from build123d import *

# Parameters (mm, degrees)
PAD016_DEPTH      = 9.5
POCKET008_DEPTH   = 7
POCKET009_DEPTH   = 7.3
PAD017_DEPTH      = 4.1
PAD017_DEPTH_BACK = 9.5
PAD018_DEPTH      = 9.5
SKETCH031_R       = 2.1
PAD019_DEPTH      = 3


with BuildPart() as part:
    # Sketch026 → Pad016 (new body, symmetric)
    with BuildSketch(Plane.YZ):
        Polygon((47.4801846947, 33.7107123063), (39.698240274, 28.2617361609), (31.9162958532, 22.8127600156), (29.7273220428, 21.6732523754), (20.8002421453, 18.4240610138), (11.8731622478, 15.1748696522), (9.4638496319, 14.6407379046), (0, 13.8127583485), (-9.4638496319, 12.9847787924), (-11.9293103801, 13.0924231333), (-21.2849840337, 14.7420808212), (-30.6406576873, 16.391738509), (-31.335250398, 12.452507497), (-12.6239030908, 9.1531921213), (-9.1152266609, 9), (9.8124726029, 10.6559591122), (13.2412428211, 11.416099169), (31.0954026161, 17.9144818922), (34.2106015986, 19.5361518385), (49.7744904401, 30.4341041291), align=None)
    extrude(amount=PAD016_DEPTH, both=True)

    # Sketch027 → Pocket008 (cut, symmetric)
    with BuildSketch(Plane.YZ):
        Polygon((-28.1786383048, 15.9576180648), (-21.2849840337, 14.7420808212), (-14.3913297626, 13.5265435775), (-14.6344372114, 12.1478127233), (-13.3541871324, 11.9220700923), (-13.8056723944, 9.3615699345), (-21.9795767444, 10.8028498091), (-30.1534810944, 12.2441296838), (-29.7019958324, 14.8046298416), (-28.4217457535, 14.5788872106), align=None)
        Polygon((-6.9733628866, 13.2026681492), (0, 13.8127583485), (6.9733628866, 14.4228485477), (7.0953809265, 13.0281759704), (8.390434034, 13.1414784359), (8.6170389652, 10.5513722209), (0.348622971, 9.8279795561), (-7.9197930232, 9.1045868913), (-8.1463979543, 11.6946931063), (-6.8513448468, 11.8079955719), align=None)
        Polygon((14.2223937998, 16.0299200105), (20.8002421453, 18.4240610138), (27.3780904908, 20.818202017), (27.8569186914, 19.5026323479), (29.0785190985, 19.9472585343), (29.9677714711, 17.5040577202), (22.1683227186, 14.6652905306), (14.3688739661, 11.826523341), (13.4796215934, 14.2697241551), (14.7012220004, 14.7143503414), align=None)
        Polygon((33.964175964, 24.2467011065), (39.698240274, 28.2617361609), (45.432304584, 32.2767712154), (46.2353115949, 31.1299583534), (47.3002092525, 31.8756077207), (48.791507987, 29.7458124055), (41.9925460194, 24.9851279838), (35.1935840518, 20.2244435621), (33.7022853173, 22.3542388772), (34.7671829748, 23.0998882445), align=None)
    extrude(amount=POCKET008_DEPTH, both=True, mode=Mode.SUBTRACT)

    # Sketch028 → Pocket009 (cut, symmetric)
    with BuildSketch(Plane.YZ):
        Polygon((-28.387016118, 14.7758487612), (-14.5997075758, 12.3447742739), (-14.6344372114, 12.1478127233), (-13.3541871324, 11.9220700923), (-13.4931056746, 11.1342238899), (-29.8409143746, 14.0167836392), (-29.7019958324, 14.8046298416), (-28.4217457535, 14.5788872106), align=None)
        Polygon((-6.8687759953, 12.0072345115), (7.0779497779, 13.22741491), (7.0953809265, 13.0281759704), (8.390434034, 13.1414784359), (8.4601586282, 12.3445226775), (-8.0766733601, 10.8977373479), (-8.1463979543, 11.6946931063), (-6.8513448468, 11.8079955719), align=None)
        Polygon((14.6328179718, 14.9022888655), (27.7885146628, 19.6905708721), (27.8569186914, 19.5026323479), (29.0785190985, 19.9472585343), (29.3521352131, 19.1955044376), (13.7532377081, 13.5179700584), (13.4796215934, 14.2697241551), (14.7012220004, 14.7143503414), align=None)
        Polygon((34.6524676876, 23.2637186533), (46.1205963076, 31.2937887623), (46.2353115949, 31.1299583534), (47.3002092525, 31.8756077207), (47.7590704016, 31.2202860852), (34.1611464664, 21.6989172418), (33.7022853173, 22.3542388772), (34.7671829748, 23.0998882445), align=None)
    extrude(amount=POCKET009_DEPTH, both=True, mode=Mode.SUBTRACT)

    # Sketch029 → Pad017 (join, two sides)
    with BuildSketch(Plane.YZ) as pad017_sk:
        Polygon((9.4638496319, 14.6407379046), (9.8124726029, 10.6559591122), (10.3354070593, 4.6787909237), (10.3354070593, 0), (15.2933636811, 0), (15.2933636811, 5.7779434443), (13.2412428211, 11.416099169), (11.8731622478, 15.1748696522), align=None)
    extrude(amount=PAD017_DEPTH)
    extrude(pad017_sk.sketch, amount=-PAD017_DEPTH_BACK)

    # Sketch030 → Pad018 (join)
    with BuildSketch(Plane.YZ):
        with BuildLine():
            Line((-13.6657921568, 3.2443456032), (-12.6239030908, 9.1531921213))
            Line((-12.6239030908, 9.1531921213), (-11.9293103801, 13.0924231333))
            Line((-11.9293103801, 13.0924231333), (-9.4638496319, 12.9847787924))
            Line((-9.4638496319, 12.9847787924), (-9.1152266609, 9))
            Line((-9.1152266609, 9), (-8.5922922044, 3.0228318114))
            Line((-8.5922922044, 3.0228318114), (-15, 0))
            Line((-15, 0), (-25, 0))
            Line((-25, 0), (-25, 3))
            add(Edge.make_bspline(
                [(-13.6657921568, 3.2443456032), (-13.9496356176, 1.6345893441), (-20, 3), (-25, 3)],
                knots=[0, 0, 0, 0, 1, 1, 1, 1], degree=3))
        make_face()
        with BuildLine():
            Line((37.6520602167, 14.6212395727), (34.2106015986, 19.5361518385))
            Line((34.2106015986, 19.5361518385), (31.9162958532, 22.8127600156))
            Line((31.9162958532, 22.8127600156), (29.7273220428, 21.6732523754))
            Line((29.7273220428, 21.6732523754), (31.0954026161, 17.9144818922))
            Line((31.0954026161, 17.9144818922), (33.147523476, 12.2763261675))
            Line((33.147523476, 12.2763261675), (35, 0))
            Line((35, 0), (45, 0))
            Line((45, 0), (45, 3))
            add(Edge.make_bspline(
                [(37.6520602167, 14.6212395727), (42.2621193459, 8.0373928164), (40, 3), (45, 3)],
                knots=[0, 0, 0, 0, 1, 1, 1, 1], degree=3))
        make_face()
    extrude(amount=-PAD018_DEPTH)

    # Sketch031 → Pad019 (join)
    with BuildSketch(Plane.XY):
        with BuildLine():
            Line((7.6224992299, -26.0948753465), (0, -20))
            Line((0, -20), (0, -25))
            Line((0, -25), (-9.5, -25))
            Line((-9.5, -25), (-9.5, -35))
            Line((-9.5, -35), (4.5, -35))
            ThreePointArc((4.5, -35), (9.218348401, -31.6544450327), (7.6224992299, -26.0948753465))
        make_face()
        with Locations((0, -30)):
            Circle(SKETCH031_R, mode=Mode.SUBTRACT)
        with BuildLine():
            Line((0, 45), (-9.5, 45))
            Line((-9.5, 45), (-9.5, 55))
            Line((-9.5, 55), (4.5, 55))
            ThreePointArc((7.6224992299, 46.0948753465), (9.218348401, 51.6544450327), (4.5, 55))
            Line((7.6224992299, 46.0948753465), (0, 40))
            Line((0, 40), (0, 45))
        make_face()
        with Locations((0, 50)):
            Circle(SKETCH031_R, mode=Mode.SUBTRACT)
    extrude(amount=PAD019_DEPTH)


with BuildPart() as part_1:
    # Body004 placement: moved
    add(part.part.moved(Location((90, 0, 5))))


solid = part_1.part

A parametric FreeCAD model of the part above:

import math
import FreeCAD as App
import Part
import Sketcher
from FreeCAD import Vector
Q = App.Units.Quantity

doc = App.newDocument("Part")
body = doc.addObject("PartDesign::Body", "Body")

# Sketch on YZ plane
sketch1 = doc.addObject("Sketcher::SketchObject", "Sketch")
body.addObject(sketch1)
sketch1.AttachmentSupport = (doc.YZ_Plane, [""])
sketch1.MapMode = "FlatFace"
sketch1.addGeometry([
    Part.LineSegment(Vector(47.480185, 33.710712, 0), Vector(39.69824, 28.261736, 0)),  # 0
    Part.LineSegment(Vector(39.69824, 28.261736, 0), Vector(31.916296, 22.81276, 0)),  # 1
    Part.LineSegment(Vector(31.916296, 22.81276, 0), Vector(29.727322, 21.673252, 0)),  # 2
    Part.LineSegment(Vector(29.727322, 21.673252, 0), Vector(11.873162, 15.17487, 0)),  # 3
    Part.LineSegment(Vector(11.873162, 15.17487, 0), Vector(9.46385, 14.640738, 0)),  # 4
    Part.LineSegment(Vector(9.46385, 14.640738, 0), Vector(-9.46385, 12.984779, 0)),  # 5
    Part.LineSegment(Vector(-9.46385, 12.984779, 0), Vector(-11.92931, 13.092423, 0)),  # 6
    Part.LineSegment(Vector(-11.92931, 13.092423, 0), Vector(-21.284984, 14.742081, 0)),  # 7
    Part.LineSegment(Vector(-21.284984, 14.742081, 0), Vector(-30.640658, 16.391739, 0)),  # 8
    Part.LineSegment(Vector(-30.640658, 16.391739, 0), Vector(-31.33525, 12.452507, 0)),  # 9
    Part.LineSegment(Vector(-31.33525, 12.452507, 0), Vector(-12.623903, 9.153192, 0)),  # 10
    Part.LineSegment(Vector(-12.623903, 9.153192, 0), Vector(-9.115227, 9, 0)),  # 11
    Part.LineSegment(Vector(-9.115227, 9, 0), Vector(9.812473, 10.655959, 0)),  # 12
    Part.LineSegment(Vector(9.812473, 10.655959, 0), Vector(13.241243, 11.416099, 0)),  # 13
    Part.LineSegment(Vector(13.241243, 11.416099, 0), Vector(31.095403, 17.914482, 0)),  # 14
    Part.LineSegment(Vector(31.095403, 17.914482, 0), Vector(34.210602, 19.536152, 0)),  # 15
    Part.LineSegment(Vector(34.210602, 19.536152, 0), Vector(49.77449, 30.434104, 0)),  # 16
    Part.LineSegment(Vector(49.77449, 30.434104, 0), Vector(47.480185, 33.710712, 0)),  # 17
], False)
sketch1.addConstraint([
    Sketcher.Constraint("Coincident", 0, 2, 1, 1),
    Sketcher.Constraint("Coincident", 1, 2, 2, 1),
    Sketcher.Constraint("Coincident", 2, 2, 3, 1),
    Sketcher.Constraint("Coincident", 3, 2, 4, 1),
    Sketcher.Constraint("Coincident", 4, 2, 5, 1),
    Sketcher.Constraint("Coincident", 5, 2, 6, 1),
    Sketcher.Constraint("Coincident", 6, 2, 7, 1),
    Sketcher.Constraint("Coincident", 7, 2, 8, 1),
    Sketcher.Constraint("Coincident", 8, 2, 9, 1),
    Sketcher.Constraint("Coincident", 9, 2, 10, 1),
    Sketcher.Constraint("Coincident", 10, 2, 11, 1),
    Sketcher.Constraint("Coincident", 11, 2, 12, 1),
    Sketcher.Constraint("Coincident", 12, 2, 13, 1),
    Sketcher.Constraint("Coincident", 13, 2, 14, 1),
    Sketcher.Constraint("Coincident", 14, 2, 15, 1),
    Sketcher.Constraint("Coincident", 15, 2, 16, 1),
    Sketcher.Constraint("Coincident", 16, 2, 17, 1),
    Sketcher.Constraint("Coincident", 17, 2, 0, 1),
    Sketcher.Constraint("Parallel", 0, 1),
    Sketcher.Constraint("Parallel", 7, 8),
    Sketcher.Constraint("Perpendicular", 8, 9),
    Sketcher.Constraint("Perpendicular", 9, 10),
    Sketcher.Constraint("Parallel", 6, 11),
    Sketcher.Constraint("Parallel", 5, 12),
    Sketcher.Constraint("Parallel", 4, 13),
    Sketcher.Constraint("Parallel", 3, 14),
    Sketcher.Constraint("Parallel", 2, 15),
    Sketcher.Constraint("Parallel", 1, 16),
    Sketcher.Constraint("Perpendicular", 16, 17),
    Sketcher.Constraint("Equal", 0, 1),
    Sketcher.Constraint("Equal", 2, 4),
    Sketcher.Constraint("Equal", 3, 5),
    Sketcher.Constraint("Equal", 4, 6),
    Sketcher.Constraint("Equal", 1, 7),
    Sketcher.Constraint("Equal", 7, 8),
    Sketcher.Constraint("Equal", 5, 10),
    Sketcher.Constraint("Equal", 10, 12),
    Sketcher.Constraint("Equal", 11, 13),
    Sketcher.Constraint("Equal", 12, 14),
    Sketcher.Constraint("Equal", 13, 15),
    Sketcher.Constraint("Equal", 14, 16),
    Sketcher.Constraint("Equal", 9, 17),
    Sketcher.Constraint("Angle", 0, Q("-145 deg")),
    Sketcher.Constraint("Angle", 3, Q("-160 deg")),
    Sketcher.Constraint("Angle", 5, Q("-175 deg")),
    Sketcher.Constraint("Angle", 7, Q("170 deg")),
    Sketcher.Constraint("Distance", 3, Q("19 mm")),
    Sketcher.Constraint("Distance", 9, Q("4 mm")),
    Sketcher.Constraint("DistanceY", -1, 1, 11, 2, Q("9 mm")),
    Sketcher.Constraint("Angle", 2, Q("-152.5 deg")),
    Sketcher.Constraint("Angle", 4, Q("-167.5 deg")),
    Sketcher.Constraint("Distance", 0, Q("9.5 mm")),
    Sketcher.Constraint("DistanceY", 4, 2, 0, 2, Q("13.620998 mm")),
    Sketcher.Constraint("DistanceX", -1, 1, 15, 2, Q("34.210602 mm")),
])
pad1 = doc.addObject("PartDesign::Pad", "Pad")
body.addObject(pad1)
pad1.Profile = sketch1
pad1.Length = 19
pad1.Midplane = True

# Sketch on YZ plane
sketch2 = doc.addObject("Sketcher::SketchObject", "Sketch001")
body.addObject(sketch2)
sketch2.AttachmentSupport = (doc.YZ_Plane, [""])
sketch2.MapMode = "FlatFace"
sketch2.addGeometry([
    Part.LineSegment(Vector(-21.284984, 14.742081, 0), Vector(-28.178638, 15.957618, 0)),  # 0
    Part.LineSegment(Vector(-28.178638, 15.957618, 0), Vector(-28.421746, 14.578887, 0)),  # 1
    Part.LineSegment(Vector(-28.421746, 14.578887, 0), Vector(-29.701996, 14.80463, 0)),  # 2
    Part.LineSegment(Vector(-29.701996, 14.80463, 0), Vector(-30.153481, 12.24413, 0)),  # 3
    Part.LineSegment(Vector(-30.153481, 12.24413, 0), Vector(-21.979577, 10.80285, 0)),  # 4
    Part.LineSegment(Vector(-21.979577, 10.80285, 0), Vector(-13.805672, 9.36157, 0)),  # 5
    Part.LineSegment(Vector(-13.805672, 9.36157, 0), Vector(-13.354187, 11.92207, 0)),  # 6
    Part.LineSegment(Vector(-13.354187, 11.92207, 0), Vector(-14.634437, 12.147813, 0)),  # 7
    Part.LineSegment(Vector(-14.634437, 12.147813, 0), Vector(-14.39133, 13.526544, 0)),  # 8
    Part.LineSegment(Vector(-14.39133, 13.526544, 0), Vector(-21.284984, 14.742081, 0)),  # 9
    Part.LineSegment(Vector(0, 13.812758, 0), Vector(-6.973363, 13.202668, 0)),  # 10
    Part.LineSegment(Vector(-6.973363, 13.202668, 0), Vector(-6.851345, 11.807996, 0)),  # 11
    Part.LineSegment(Vector(-6.851345, 11.807996, 0), Vector(-8.146398, 11.694693, 0)),  # 12
    Part.LineSegment(Vector(-8.146398, 11.694693, 0), Vector(-7.919793, 9.104587, 0)),  # 13
    Part.LineSegment(Vector(-7.919793, 9.104587, 0), Vector(8.617039, 10.551372, 0)),  # 14
    Part.LineSegment(Vector(8.617039, 10.551372, 0), Vector(8.390434, 13.141478, 0)),  # 15
    Part.LineSegment(Vector(8.390434, 13.141478, 0), Vector(7.095381, 13.028176, 0)),  # 16
    Part.LineSegment(Vector(7.095381, 13.028176, 0), Vector(6.973363, 14.422849, 0)),  # 17
    Part.LineSegment(Vector(6.973363, 14.422849, 0), Vector(0, 13.812758, 0)),  # 18
    Part.LineSegment(Vector(20.800242, 18.424061, 0), Vector(14.222394, 16.02992, 0)),  # 19
    Part.LineSegment(Vector(14.222394, 16.02992, 0), Vector(14.701222, 14.71435, 0)),  # 20
    Part.LineSegment(Vector(14.701222, 14.71435, 0), Vector(13.479622, 14.269724, 0)),  # 21
    Part.LineSegment(Vector(13.479622, 14.269724, 0), Vector(14.368874, 11.826523, 0)),  # 22
    Part.LineSegment(Vector(14.368874, 11.826523, 0), Vector(29.967771, 17.504058, 0)),  # 23
    Part.LineSegment(Vector(29.967771, 17.504058, 0), Vector(29.078519, 19.947259, 0)),  # 24
    Part.LineSegment(Vector(29.078519, 19.947259, 0), Vector(27.856919, 19.502632, 0)),  # 25
    Part.LineSegment(Vector(27.856919, 19.502632, 0), Vector(27.37809, 20.818202, 0)),  # 26
    Part.LineSegment(Vector(27.37809, 20.818202, 0), Vector(20.800242, 18.424061, 0)),  # 27
    Part.LineSegment(Vector(39.69824, 28.261736, 0), Vector(33.964176, 24.246701, 0)),  # 28
    Part.LineSegment(Vector(33.964176, 24.246701, 0), Vector(34.767183, 23.099888, 0)),  # 29
    Part.LineSegment(Vector(34.767183, 23.099888, 0), Vector(33.702285, 22.354239, 0)),  # 30
    Part.LineSegment(Vector(33.702285, 22.354239, 0), Vector(35.193584, 20.224444, 0)),  # 31
    Part.LineSegment(Vector(35.193584, 20.224444, 0), Vector(48.791508, 29.745812, 0)),  # 32
    Part.LineSegment(Vector(48.791508, 29.745812, 0), Vector(47.300209, 31.875608, 0)),  # 33
    Part.LineSegment(Vector(47.300209, 31.875608, 0), Vector(46.235312, 31.129958, 0)),  # 34
    Part.LineSegment(Vector(46.235312, 31.129958, 0), Vector(45.432305, 32.276771, 0)),  # 35
    Part.LineSegment(Vector(45.432305, 32.276771, 0), Vector(39.69824, 28.261736, 0)),  # 36
], False)
sketch2.addConstraint([
    Sketcher.Constraint("Coincident", 0, 2, 1, 1),
    Sketcher.Constraint("Coincident", 1, 2, 2, 1),
    Sketcher.Constraint("Coincident", 2, 2, 3, 1),
    Sketcher.Constraint("Coincident", 3, 2, 4, 1),
    Sketcher.Constraint("Coincident", 4, 2, 5, 1),
    Sketcher.Constraint("Coincident", 5, 2, 6, 1),
    Sketcher.Constraint("Coincident", 6, 2, 7, 1),
    Sketcher.Constraint("Coincident", 7, 2, 8, 1),
    Sketcher.Constraint("Coincident", 8, 2, 9, 1),
    Sketcher.Constraint("Coincident", 9, 2, 0, 1),
    Sketcher.Constraint("Coincident", 10, 2, 11, 1),
    Sketcher.Constraint("Coincident", 11, 2, 12, 1),
    Sketcher.Constraint("Coincident", 12, 2, 13, 1),
    Sketcher.Constraint("Coincident", 13, 2, 14, 1),
    Sketcher.Constraint("Coincident", 14, 2, 15, 1),
    Sketcher.Constraint("Coincident", 15, 2, 16, 1),
    Sketcher.Constraint("Coincident", 16, 2, 17, 1),
    Sketcher.Constraint("Coincident", 17, 2, 18, 1),
    Sketcher.Constraint("Coincident", 18, 2, 10, 1),
    Sketcher.Constraint("Coincident", 19, 2, 20, 1),
    Sketcher.Constraint("Coincident", 20, 2, 21, 1),
    Sketcher.Constraint("Coincident", 21, 2, 22, 1),
    Sketcher.Constraint("Coincident", 22, 2, 23, 1),
    Sketcher.Constraint("Coincident", 23, 2, 24, 1),
    Sketcher.Constraint("Coincident", 24, 2, 25, 1),
    Sketcher.Constraint("Coincident", 25, 2, 26, 1),
    Sketcher.Constraint("Coincident", 26, 2, 27, 1),
    Sketcher.Constraint("Coincident", 27, 2, 19, 1),
    Sketcher.Constraint("Coincident", 28, 2, 29, 1),
    Sketcher.Constraint("Coincident", 29, 2, 30, 1),
    Sketcher.Constraint("Coincident", 30, 2, 31, 1),
    Sketcher.Constraint("Coincident", 31, 2, 32, 1),
    Sketcher.Constraint("Coincident", 32, 2, 33, 1),
    Sketcher.Constraint("Coincident", 33, 2, 34, 1),
    Sketcher.Constraint("Coincident", 34, 2, 35, 1),
    Sketcher.Constraint("Coincident", 35, 2, 36, 1),
    Sketcher.Constraint("Coincident", 36, 2, 28, 1),
    Sketcher.Constraint("PointOnObject", 18, 2, -2),
    Sketcher.Constraint("Perpendicular", 0, 1),
    Sketcher.Constraint("Perpendicular", 1, 2),
    Sketcher.Constraint("Perpendicular", 2, 3),
    Sketcher.Constraint("Perpendicular", 3, 4),
    Sketcher.Constraint("Parallel", 4, 5),
    Sketcher.Constraint("Perpendicular", 5, 6),
    Sketcher.Constraint("Perpendicular", 6, 7),
    Sketcher.Constraint("Perpendicular", 7, 8),
    Sketcher.Constraint("Perpendicular", 8, 9),
    Sketcher.Constraint("Perpendicular", 10, 11),
    Sketcher.Constraint("Perpendicular", 11, 12),
    Sketcher.Constraint("Perpendicular", 12, 13),
    Sketcher.Constraint("Perpendicular", 13, 14),
    Sketcher.Constraint("Perpendicular", 14, 15),
    Sketcher.Constraint("Perpendicular", 15, 16),
    Sketcher.Constraint("Perpendicular", 16, 17),
    Sketcher.Constraint("Perpendicular", 17, 18),
    Sketcher.Constraint("Perpendicular", 19, 20),
    Sketcher.Constraint("Perpendicular", 20, 21),
    Sketcher.Constraint("Perpendicular", 21, 22),
    Sketcher.Constraint("Perpendicular", 22, 23),
    Sketcher.Constraint("Perpendicular", 23, 24),
    Sketcher.Constraint("Perpendicular", 24, 25),
    Sketcher.Constraint("Perpendicular", 25, 26),
    Sketcher.Constraint("Perpendicular", 26, 27),
    Sketcher.Constraint("Perpendicular", 28, 29),
    Sketcher.Constraint("Perpendicular", 29, 30),
    Sketcher.Constraint("Perpendicular", 30, 31),
    Sketcher.Constraint("Perpendicular", 31, 32),
    Sketcher.Constraint("Perpendicular", 32, 33),
    Sketcher.Constraint("Perpendicular", 33, 34),
    Sketcher.Constraint("Perpendicular", 34, 35),
    Sketcher.Constraint("Perpendicular", 35, 36),
    Sketcher.Constraint("Equal", 4, 5),
    Sketcher.Constraint("Equal", 3, 6),
    Sketcher.Constraint("Equal", 2, 7),
    Sketcher.Constraint("Equal", 0, 9),
    Sketcher.Constraint("Equal", 9, 10),
    Sketcher.Constraint("Equal", 8, 11),
    Sketcher.Constraint("Equal", 7, 12),
    Sketcher.Constraint("Equal", 6, 13),
    Sketcher.Constraint("Equal", 13, 15),
    Sketcher.Constraint("Equal", 12, 16),
    Sketcher.Constraint("Equal", 10, 18),
    Sketcher.Constraint("Equal", 18, 19),
    Sketcher.Constraint("Equal", 17, 20),
    Sketcher.Constraint("Equal", 16, 21),
    Sketcher.Constraint("Equal", 15, 22),
    Sketcher.Constraint("Equal", 14, 23),
    Sketcher.Constraint("Equal", 22, 24),
    Sketcher.Constraint("Equal", 21, 25),
    Sketcher.Constraint("Equal", 27, 28),
    Sketcher.Constraint("Equal", 26, 29),
    Sketcher.Constraint("Equal", 25, 30),
    Sketcher.Constraint("Equal", 24, 31),
    Sketcher.Constraint("Equal", 23, 32),
    Sketcher.Constraint("Equal", 31, 33),
    Sketcher.Constraint("Equal", 30, 34),
    Sketcher.Constraint("Angle", 0, Q("170 deg")),
    Sketcher.Constraint("Angle", 10, Q("-175 deg")),
    Sketcher.Constraint("Angle", 19, Q("-160 deg")),
    Sketcher.Constraint("Angle", 28, Q("-145 deg")),
    Sketcher.Constraint("Distance", 0, Q("7 mm")),
    Sketcher.Constraint("Distance", 1, Q("1.4 mm")),
    Sketcher.Constraint("Distance", 2, Q("1.3 mm")),
    Sketcher.Constraint("Distance", 3, Q("2.6 mm")),
    Sketcher.Constraint("DistanceY", -1, 1, 28, 2, Q("24.246701 mm")),
    Sketcher.Constraint("DistanceY", 6, 2, 10, 2, Q("1.280598 mm")),
    Sketcher.Constraint("DistanceY", 17, 2, 20, 2, Q("0.291502 mm")),
    Sketcher.Constraint("DistanceY", 26, 2, 28, 2, Q("3.428499 mm")),
    Sketcher.Constraint("DistanceX", 0, 2, -1, 1, Q("28.178638 mm")),
    Sketcher.Constraint("DistanceX", -1, 1, 21, 2, Q("13.479622 mm")),
    Sketcher.Constraint("DistanceX", -1, 1, 33, 2, Q("47.300209 mm")),
])
pocket1 = doc.addObject("PartDesign::Pocket", "Pocket")
body.addObject(pocket1)
pocket1.Profile = sketch2
pocket1.Length = 14
pocket1.Midplane = True

# Sketch on YZ plane
sketch3 = doc.addObject("Sketcher::SketchObject", "Sketch002")
body.addObject(sketch3)
sketch3.AttachmentSupport = (doc.YZ_Plane, [""])
sketch3.MapMode = "FlatFace"
sketch3.addGeometry([
    Part.LineSegment(Vector(-14.599708, 12.344774, 0), Vector(-28.387016, 14.775849, 0)),  # 0
    Part.LineSegment(Vector(-28.387016, 14.775849, 0), Vector(-28.421746, 14.578887, 0)),  # 1
    Part.LineSegment(Vector(-28.421746, 14.578887, 0), Vector(-29.701996, 14.80463, 0)),  # 2
    Part.LineSegment(Vector(-29.701996, 14.80463, 0), Vector(-29.840914, 14.016784, 0)),  # 3
    Part.LineSegment(Vector(-29.840914, 14.016784, 0), Vector(-13.493106, 11.134224, 0)),  # 4
    Part.LineSegment(Vector(-13.493106, 11.134224, 0), Vector(-13.354187, 11.92207, 0)),  # 5
    Part.LineSegment(Vector(-13.354187, 11.92207, 0), Vector(-14.634437, 12.147813, 0)),  # 6
    Part.LineSegment(Vector(-14.634437, 12.147813, 0), Vector(-14.599708, 12.344774, 0)),  # 7
    Part.LineSegment(Vector(7.07795, 13.227415, 0), Vector(-6.868776, 12.007235, 0)),  # 8
    Part.LineSegment(Vector(-6.868776, 12.007235, 0), Vector(-6.851345, 11.807996, 0)),  # 9
    Part.LineSegment(Vector(-6.851345, 11.807996, 0), Vector(-8.146398, 11.694693, 0)),  # 10
    Part.LineSegment(Vector(-8.146398, 11.694693, 0), Vector(-8.076673, 10.897737, 0)),  # 11
    Part.LineSegment(Vector(-8.076673, 10.897737, 0), Vector(8.460159, 12.344523, 0)),  # 12
    Part.LineSegment(Vector(8.460159, 12.344523, 0), Vector(8.390434, 13.141478, 0)),  # 13
    Part.LineSegment(Vector(8.390434, 13.141478, 0), Vector(7.095381, 13.028176, 0)),  # 14
    Part.LineSegment(Vector(7.095381, 13.028176, 0), Vector(7.07795, 13.227415, 0)),  # 15
    Part.LineSegment(Vector(27.788515, 19.690571, 0), Vector(14.632818, 14.902289, 0)),  # 16
    Part.LineSegment(Vector(14.632818, 14.902289, 0), Vector(14.701222, 14.71435, 0)),  # 17
    Part.LineSegment(Vector(14.701222, 14.71435, 0), Vector(13.479622, 14.269724, 0)),  # 18
    Part.LineSegment(Vector(13.479622, 14.269724, 0), Vector(13.753238, 13.51797, 0)),  # 19
    Part.LineSegment(Vector(13.753238, 13.51797, 0), Vector(29.352135, 19.195504, 0)),  # 20
    Part.LineSegment(Vector(29.352135, 19.195504, 0), Vector(29.078519, 19.947259, 0)),  # 21
    Part.LineSegment(Vector(29.078519, 19.947259, 0), Vector(27.856919, 19.502632, 0)),  # 22
    Part.LineSegment(Vector(27.856919, 19.502632, 0), Vector(27.788515, 19.690571, 0)),  # 23
    Part.LineSegment(Vector(46.120596, 31.293789, 0), Vector(34.652468, 23.263719, 0)),  # 24
    Part.LineSegment(Vector(34.652468, 23.263719, 0), Vector(34.767183, 23.099888, 0)),  # 25
    Part.LineSegment(Vector(34.767183, 23.099888, 0), Vector(33.702285, 22.354239, 0)),  # 26
    Part.LineSegment(Vector(33.702285, 22.354239, 0), Vector(34.161146, 21.698917, 0)),  # 27
    Part.LineSegment(Vector(34.161146, 21.698917, 0), Vector(47.75907, 31.220286, 0)),  # 28
    Part.LineSegment(Vector(47.75907, 31.220286, 0), Vector(47.300209, 31.875608, 0)),  # 29
    Part.LineSegment(Vector(47.300209, 31.875608, 0), Vector(46.235312, 31.129958, 0)),  # 30
    Part.LineSegment(Vector(46.235312, 31.129958, 0), Vector(46.120596, 31.293789, 0)),  # 31
], False)
sketch3.addConstraint([
    Sketcher.Constraint("Coincident", 0, 2, 1, 1),
    Sketcher.Constraint("Coincident", 1, 2, 2, 1),
    Sketcher.Constraint("Coincident", 2, 2, 3, 1),
    Sketcher.Constraint("Coincident", 3, 2, 4, 1),
    Sketcher.Constraint("Coincident", 4, 2, 5, 1),
    Sketcher.Constraint("Coincident", 5, 2, 6, 1),
    Sketcher.Constraint("Coincident", 6, 2, 7, 1),
    Sketcher.Constraint("Coincident", 7, 2, 0, 1),
    Sketcher.Constraint("Coincident", 8, 2, 9, 1),
    Sketcher.Constraint("Coincident", 9, 2, 10, 1),
    Sketcher.Constraint("Coincident", 10, 2, 11, 1),
    Sketcher.Constraint("Coincident", 11, 2, 12, 1),
    Sketcher.Constraint("Coincident", 12, 2, 13, 1),
    Sketcher.Constraint("Coincident", 13, 2, 14, 1),
    Sketcher.Constraint("Coincident", 14, 2, 15, 1),
    Sketcher.Constraint("Coincident", 15, 2, 8, 1),
    Sketcher.Constraint("Coincident", 16, 2, 17, 1),
    Sketcher.Constraint("Coincident", 17, 2, 18, 1),
    Sketcher.Constraint("Coincident", 18, 2, 19, 1),
    Sketcher.Constraint("Coincident", 19, 2, 20, 1),
    Sketcher.Constraint("Coincident", 20, 2, 21, 1),
    Sketcher.Constraint("Coincident", 21, 2, 22, 1),
    Sketcher.Constraint("Coincident", 22, 2, 23, 1),
    Sketcher.Constraint("Coincident", 23, 2, 16, 1),
    Sketcher.Constraint("Coincident", 24, 2, 25, 1),
    Sketcher.Constraint("Coincident", 25, 2, 26, 1),
    Sketcher.Constraint("Coincident", 26, 2, 27, 1),
    Sketcher.Constraint("Coincident", 27, 2, 28, 1),
    Sketcher.Constraint("Coincident", 28, 2, 29, 1),
    Sketcher.Constraint("Coincident", 29, 2, 30, 1),
    Sketcher.Constraint("Coincident", 30, 2, 31, 1),
    Sketcher.Constraint("Coincident", 31, 2, 24, 1),
    Sketcher.Constraint("Perpendicular", 0, 1),
    Sketcher.Constraint("Perpendicular", 1, 2),
    Sketcher.Constraint("Perpendicular", 2, 3),
    Sketcher.Constraint("Perpendicular", 3, 4),
    Sketcher.Constraint("Perpendicular", 4, 5),
    Sketcher.Constraint("Perpendicular", 5, 6),
    Sketcher.Constraint("Perpendicular", 6, 7),
    Sketcher.Constraint("Perpendicular", 8, 9),
    Sketcher.Constraint("Perpendicular", 9, 10),
    Sketcher.Constraint("Perpendicular", 10, 11),
    Sketcher.Constraint("Perpendicular", 11, 12),
    Sketcher.Constraint("Perpendicular", 12, 13),
    Sketcher.Constraint("Perpendicular", 13, 14),
    Sketcher.Constraint("Perpendicular", 14, 15),
    Sketcher.Constraint("Perpendicular", 16, 17),
    Sketcher.Constraint("Perpendicular", 17, 18),
    Sketcher.Constraint("Perpendicular", 18, 19),
    Sketcher.Constraint("Perpendicular", 19, 20),
    Sketcher.Constraint("Perpendicular", 20, 21),
    Sketcher.Constraint("Perpendicular", 21, 22),
    Sketcher.Constraint("Perpendicular", 22, 23),
    Sketcher.Constraint("Perpendicular", 24, 25),
    Sketcher.Constraint("Perpendicular", 25, 26),
    Sketcher.Constraint("Perpendicular", 26, 27),
    Sketcher.Constraint("Perpendicular", 27, 28),
    Sketcher.Constraint("Perpendicular", 28, 29),
    Sketcher.Constraint("Perpendicular", 29, 30),
    Sketcher.Constraint("Perpendicular", 30, 31),
    Sketcher.Constraint("Equal", 3, 5),
    Sketcher.Constraint("Equal", 2, 6),
    Sketcher.Constraint("Equal", 0, 8),
    Sketcher.Constraint("Equal", 7, 9),
    Sketcher.Constraint("Equal", 6, 10),
    Sketcher.Constraint("Equal", 5, 11),
    Sketcher.Constraint("Equal", 4, 12),
    Sketcher.Constraint("Equal", 11, 13),
    Sketcher.Constraint("Equal", 8, 16),
    Sketcher.Constraint("Equal", 15, 17),
    Sketcher.Constraint("Equal", 14, 18),
    Sketcher.Constraint("Equal", 13, 19),
    Sketcher.Constraint("Equal", 12, 20),
    Sketcher.Constraint("Equal", 19, 21),
    Sketcher.Constraint("Equal", 16, 24),
    Sketcher.Constraint("Equal", 23, 25),
    Sketcher.Constraint("Equal", 22, 26),
    Sketcher.Constraint("Equal", 21, 27),
    Sketcher.Constraint("Equal", 20, 28),
    Sketcher.Constraint("Equal", 27, 29),
    Sketcher.Constraint("Angle", 0, Q("170 deg")),
    Sketcher.Constraint("Angle", 8, Q("-175 deg")),
    Sketcher.Constraint("Angle", 16, Q("-160 deg")),
    Sketcher.Constraint("Angle", 24, Q("-145 deg")),
    Sketcher.Constraint("Distance", 0, Q("14 mm")),
    Sketcher.Constraint("Distance", 1, Q("0.2 mm")),
    Sketcher.Constraint("Distance", 2, Q("1.3 mm")),
    Sketcher.Constraint("Distance", 3, Q("0.8 mm")),
    Sketcher.Constraint("DistanceY", 12, 2, 18, 2, Q("1.925201 mm")),
    Sketcher.Constraint("DistanceX", 13, 2, 20, 2, Q("20.961701 mm")),
    Sketcher.Constraint("DistanceY", -1, 1, 0, 2, Q("14.775849 mm")),
    Sketcher.Constraint("DistanceX", -1, 1, 12, 2, Q("8.460159 mm")),
    Sketcher.Constraint("DistanceY", -1, 1, 13, 2, Q("13.141478 mm")),
    Sketcher.Constraint("DistanceY", -1, 1, 24, 2, Q("23.263719 mm")),
    Sketcher.Constraint("DistanceX", -1, 1, 28, 2, Q("47.75907 mm")),
    Sketcher.Constraint("DistanceX", 5, 2, 8, 2, Q("6.485411 mm")),
])
pocket2 = doc.addObject("PartDesign::Pocket", "Pocket001")
body.addObject(pocket2)
pocket2.Profile = sketch3
pocket2.Length = 14.6
pocket2.Midplane = True

# Sketch on YZ plane
sketch4 = doc.addObject("Sketcher::SketchObject", "Sketch003")
body.addObject(sketch4)
sketch4.AttachmentSupport = (doc.YZ_Plane, [""])
sketch4.MapMode = "FlatFace"
sketch4.addGeometry([
    Part.LineSegment(Vector(9.46385, 14.640738, 0), Vector(9.812473, 10.655959, 0)),  # 0
    Part.LineSegment(Vector(9.812473, 10.655959, 0), Vector(10.335407, 4.678791, 0)),  # 1
    Part.LineSegment(Vector(10.335407, 4.678791, 0), Vector(10.335407, 0, 0)),  # 2
    Part.LineSegment(Vector(10.335407, 0, 0), Vector(15.293364, 0, 0)),  # 3
    Part.LineSegment(Vector(15.293364, 0, 0), Vector(15.293364, 5.777943, 0)),  # 4
    Part.LineSegment(Vector(15.293364, 5.777943, 0), Vector(13.241243, 11.416099, 0)),  # 5
    Part.LineSegment(Vector(13.241243, 11.416099, 0), Vector(11.873162, 15.17487, 0)),  # 6
    Part.LineSegment(Vector(11.873162, 15.17487, 0), Vector(9.46385, 14.640738, 0)),  # 7
], False)
sketch4.addConstraint([
    Sketcher.Constraint("Coincident", 0, 2, 1, 1),
    Sketcher.Constraint("Coincident", 1, 2, 2, 1),
    Sketcher.Constraint("Coincident", 2, 2, 3, 1),
    Sketcher.Constraint("Coincident", 3, 2, 4, 1),
    Sketcher.Constraint("Coincident", 4, 2, 5, 1),
    Sketcher.Constraint("Coincident", 5, 2, 6, 1),
    Sketcher.Constraint("Coincident", 6, 2, 7, 1),
    Sketcher.Constraint("Coincident", 7, 2, 0, 1),
    Sketcher.Constraint("Vertical", 2),
    Sketcher.Constraint("Horizontal", 3),
    Sketcher.Constraint("Vertical", 4),
    Sketcher.Constraint("PointOnObject", 2, 2, -1),
    Sketcher.Constraint("Parallel", 0, 1),
    Sketcher.Constraint("Parallel", 5, 6),
    Sketcher.Constraint("Equal", 1, 5),
    Sketcher.Constraint("Equal", 0, 6),
    Sketcher.Constraint("Angle", 0, Q("-85 deg")),
    Sketcher.Constraint("Angle", 5, Q("110 deg")),
    Sketcher.Constraint("Distance", 0, Q("4 mm")),
    Sketcher.Constraint("Distance", 1, Q("6 mm")),
    Sketcher.Constraint("Angle", 7, Q("-167.5 deg")),
    Sketcher.Constraint("DistanceY", 2, 2, 2, 1, Q("4.678791 mm")),
    Sketcher.Constraint("DistanceY", -1, 1, 5, 2, Q("11.416099 mm")),
    Sketcher.Constraint("DistanceX", -1, 1, 7, 2, Q("9.46385 mm")),
])
pad2 = doc.addObject("PartDesign::Pad", "Pad001")
body.addObject(pad2)
pad2.Profile = sketch4
pad2.Type = "TwoLengths"
pad2.Length = 4.1
pad2.Length2 = 9.5

# Sketch on YZ plane
sketch5 = doc.addObject("Sketcher::SketchObject", "Sketch004")
body.addObject(sketch5)
sketch5.AttachmentSupport = (doc.YZ_Plane, [""])
sketch5.MapMode = "FlatFace"
sketch5.addGeometry([
    Part.LineSegment(Vector(-12.623903, 9.153192, 0), Vector(-13.665792, 3.244346, 0)),  # 0
    Part.BSplineCurve([Vector(-13.665792, 3.244346, 0), Vector(-13.949636, 1.634589, 0), Vector(-20, 3, 0), Vector(-25, 3, 0)], [4, 4], [0, 1], False, 3, [1, 1, 1, 1], False),  # 1
    Part.LineSegment(Vector(-25, 3, 0), Vector(-25, 0, 0)),  # 2
    Part.LineSegment(Vector(-25, 0, 0), Vector(-15, 0, 0)),  # 3
    Part.LineSegment(Vector(-15, 0, 0), Vector(-8.592292, 3.022832, 0)),  # 4
    Part.LineSegment(Vector(-8.592292, 3.022832, 0), Vector(-9.46385, 12.984779, 0)),  # 5
    Part.LineSegment(Vector(-9.46385, 12.984779, 0), Vector(-11.92931, 13.092423, 0)),  # 6
    Part.LineSegment(Vector(-11.92931, 13.092423, 0), Vector(-12.623903, 9.153192, 0)),  # 7
    Part.LineSegment(Vector(37.65206, 14.62124, 0), Vector(34.210602, 19.536152, 0)),  # 8
    Part.LineSegment(Vector(34.210602, 19.536152, 0), Vector(31.916296, 22.81276, 0)),  # 9
    Part.LineSegment(Vector(31.916296, 22.81276, 0), Vector(29.727322, 21.673252, 0)),  # 10
    Part.LineSegment(Vector(29.727322, 21.673252, 0), Vector(31.095403, 17.914482, 0)),  # 11
    Part.LineSegment(Vector(31.095403, 17.914482, 0), Vector(33.147523, 12.276326, 0)),  # 12
    Part.LineSegment(Vector(33.147523, 12.276326, 0), Vector(35, 0, 0)),  # 13
    Part.LineSegment(Vector(35, 0, 0), Vector(45, 0, 0)),  # 14
    Part.LineSegment(Vector(45, 0, 0), Vector(45, 3, 0)),  # 15
    Part.BSplineCurve([Vector(37.65206, 14.62124, 0), Vector(42.262119, 8.037393, 0), Vector(40, 3, 0), Vector(45, 3, 0)], [4, 4], [0, 1], False, 3, [1, 1, 1, 1], False),  # 16
], False)
sketch5.addConstraint([
    Sketcher.Constraint("Block", 1),
    Sketcher.Constraint("Block", 16),
    Sketcher.Constraint("Coincident", 0, 2, 1, 1),
    Sketcher.Constraint("Coincident", 1, 2, 2, 1),
    Sketcher.Constraint("Coincident", 2, 2, 3, 1),
    Sketcher.Constraint("Coincident", 3, 2, 4, 1),
    Sketcher.Constraint("Coincident", 4, 2, 5, 1),
    Sketcher.Constraint("Coincident", 5, 2, 6, 1),
    Sketcher.Constraint("Coincident", 6, 2, 7, 1),
    Sketcher.Constraint("Coincident", 7, 2, 0, 1),
    Sketcher.Constraint("Coincident", 8, 2, 9, 1),
    Sketcher.Constraint("Coincident", 9, 2, 10, 1),
    Sketcher.Constraint("Coincident", 10, 2, 11, 1),
    Sketcher.Constraint("Coincident", 11, 2, 12, 1),
    Sketcher.Constraint("Coincident", 12, 2, 13, 1),
    Sketcher.Constraint("Coincident", 13, 2, 14, 1),
    Sketcher.Constraint("Coincident", 14, 2, 15, 1),
    Sketcher.Constraint("Coincident", 15, 2, 16, 2),
    Sketcher.Constraint("Coincident", 16, 1, 8, 1),
    Sketcher.Constraint("Vertical", 2),
    Sketcher.Constraint("Horizontal", 3),
    Sketcher.Constraint("Horizontal", 14),
    Sketcher.Constraint("Vertical", 15),
    Sketcher.Constraint("PointOnObject", 2, 2, -1),
    Sketcher.Constraint("PointOnObject", 13, 2, -1),
    Sketcher.Constraint("Parallel", 0, 7),
    Sketcher.Constraint("Parallel", 8, 9),
    Sketcher.Constraint("Parallel", 11, 12),
    Sketcher.Constraint("Equal", 3, 14),
    Sketcher.Constraint("Equal", 0, 8),
    Sketcher.Constraint("Equal", 7, 9),
    Sketcher.Constraint("Equal", 6, 10),
    Sketcher.Constraint("Equal", 9, 11),
    Sketcher.Constraint("Equal", 8, 12),
    Sketcher.Constraint("DistanceX", 3, 1, 3, 2, Q("10 mm")),
    Sketcher.Constraint("Angle", 0, Q("-100 deg")),
    Sketcher.Constraint("Angle", 5, Q("95 deg")),
    Sketcher.Constraint("Angle", 8, Q("125 deg")),
    Sketcher.Constraint("Angle", 11, Q("-70 deg")),
    Sketcher.Constraint("Distance", 0, Q("6 mm")),
    Sketcher.Constraint("Distance", 5, Q("10 mm")),
    Sketcher.Constraint("Distance", 7, Q("4 mm")),
    Sketcher.Constraint("Angle", 6, Q("177.5 deg")),
    Sketcher.Constraint("Angle", 10, Q("-152.5 deg")),
    Sketcher.Constraint("DistanceX", 0, 2, 4, 2, Q("5.0735 mm")),
])
pad3 = doc.addObject("PartDesign::Pad", "Pad002")
body.addObject(pad3)
pad3.Profile = sketch5
pad3.Length = 9.5
pad3.Reversed = True

# Sketch on XY plane
sketch6 = doc.addObject("Sketcher::SketchObject", "Sketch005")
body.addObject(sketch6)
sketch6.AttachmentSupport = (doc.XY_Plane, [""])
sketch6.MapMode = "FlatFace"
sketch6.addGeometry([
    Part.LineSegment(Vector(7.622499, -26.094875, 0), Vector(0, -20, 0)),  # 0
    Part.LineSegment(Vector(0, -20, 0), Vector(0, -25, 0)),  # 1
    Part.LineSegment(Vector(0, -25, 0), Vector(-9.5, -25, 0)),  # 2
    Part.LineSegment(Vector(-9.5, -25, 0), Vector(-9.5, -35, 0)),  # 3
    Part.LineSegment(Vector(-9.5, -35, 0), Vector(4.5, -35, 0)),  # 4
    Part.ArcOfCircle(Part.Circle(Vector(4.5, -30, 0), Vector(0, 0, 1), 5), math.radians(-90), math.radians(51.354513)),  # 5
    Part.Circle(Vector(0, -30, 0), Vector(0, 0, 1), 2.1),  # 6
    Part.LineSegment(Vector(-9.5, 45, 0), Vector(0, 45, 0)),  # 7
    Part.LineSegment(Vector(0, 45, 0), Vector(0, 40, 0)),  # 8
    Part.LineSegment(Vector(0, 40, 0), Vector(7.622499, 46.094875, 0)),  # 9
    Part.ArcOfCircle(Part.Circle(Vector(4.5, 50, 0), Vector(0, 0, 1), 5), math.radians(-51.354513), math.radians(90)),  # 10
    Part.LineSegment(Vector(4.5, 55, 0), Vector(-9.5, 55, 0)),  # 11
    Part.LineSegment(Vector(-9.5, 55, 0), Vector(-9.5, 45, 0)),  # 12
    Part.Circle(Vector(0, 50, 0), Vector(0, 0, 1), 2.1),  # 13
], False)
sketch6.addConstraint([
    Sketcher.Constraint("Coincident", 0, 2, 1, 1),
    Sketcher.Constraint("Coincident", 1, 2, 2, 1),
    Sketcher.Constraint("Coincident", 2, 2, 3, 1),
    Sketcher.Constraint("Coincident", 3, 2, 4, 1),
    Sketcher.Constraint("Tangent", 4, 2, 5, 1),
    Sketcher.Constraint("Tangent", 5, 2, 0, 1),
    Sketcher.Constraint("Coincident", 7, 2, 8, 1),
    Sketcher.Constraint("Coincident", 8, 2, 9, 1),
    Sketcher.Constraint("Tangent", 9, 2, 10, 1),
    Sketcher.Constraint("Tangent", 10, 2, 11, 1),
    Sketcher.Constraint("Coincident", 11, 2, 12, 1),
    Sketcher.Constraint("Coincident", 12, 2, 7, 1),
    Sketcher.Constraint("Vertical", 1),
    Sketcher.Constraint("Horizontal", 2),
    Sketcher.Constraint("Vertical", 3),
    Sketcher.Constraint("Horizontal", 4),
    Sketcher.Constraint("Horizontal", 7),
    Sketcher.Constraint("Vertical", 8),
    Sketcher.Constraint("Horizontal", 11),
    Sketcher.Constraint("Vertical", 12),
    Sketcher.Constraint("Equal", 5, 10),
    Sketcher.Constraint("Equal", 6, 13),
    Sketcher.Constraint("PointOnObject", 6, 3, -2),
    Sketcher.Constraint("PointOnObject", 13, 3, -2),
    Sketcher.Constraint("PointOnObject", 0, 2, -2),
    Sketcher.Constraint("PointOnObject", 7, 2, -2),
    Sketcher.Constraint("Horizontal", 5, 3, 6, 3),
    Sketcher.Constraint("Horizontal", 10, 3, 13, 3),
    Sketcher.Constraint("Vertical", 5, 3, 10, 3),
    Sketcher.Constraint("Vertical", 5, 2, 9, 2),
    Sketcher.Constraint("Vertical", 3, 2, 11, 2),
    Sketcher.Constraint("Equal", 1, 8),
    Sketcher.Constraint("Radius", 5, Q("5 mm")),
    Sketcher.Constraint("Diameter", 6, Q("4.2 mm")),
    Sketcher.Constraint("DistanceX", 4, 1, 4, 2, Q("14 mm")),
    Sketcher.Constraint("DistanceY", 1, 2, 1, 1, Q("5 mm")),
    Sketcher.Constraint("DistanceY", 3, 2, 3, 1, Q("10 mm")),
    Sketcher.Constraint("DistanceX", 2, 2, 2, 1, Q("9.5 mm")),
    Sketcher.Constraint("DistanceY", 5, 3, -1, 1, Q("30 mm")),
    Sketcher.Constraint("DistanceY", -1, 1, 10, 3, Q("50 mm")),
])
pad4 = doc.addObject("PartDesign::Pad", "Pad003")
body.addObject(pad4)
pad4.Profile = sketch6
pad4.Length = 3
body2 = doc.addObject("PartDesign::Body", "Body001")
doc.recompute()

body.Placement = App.Placement(Vector(90, 0, 5), App.Rotation(Vector(0, 0, 1), 0))
boolean = doc.addObject("PartDesign::Boolean", "Boolean")
body2.addObject(boolean)
boolean.Type = "Fuse"
boolean.addObjects([body])

doc.recompute()
